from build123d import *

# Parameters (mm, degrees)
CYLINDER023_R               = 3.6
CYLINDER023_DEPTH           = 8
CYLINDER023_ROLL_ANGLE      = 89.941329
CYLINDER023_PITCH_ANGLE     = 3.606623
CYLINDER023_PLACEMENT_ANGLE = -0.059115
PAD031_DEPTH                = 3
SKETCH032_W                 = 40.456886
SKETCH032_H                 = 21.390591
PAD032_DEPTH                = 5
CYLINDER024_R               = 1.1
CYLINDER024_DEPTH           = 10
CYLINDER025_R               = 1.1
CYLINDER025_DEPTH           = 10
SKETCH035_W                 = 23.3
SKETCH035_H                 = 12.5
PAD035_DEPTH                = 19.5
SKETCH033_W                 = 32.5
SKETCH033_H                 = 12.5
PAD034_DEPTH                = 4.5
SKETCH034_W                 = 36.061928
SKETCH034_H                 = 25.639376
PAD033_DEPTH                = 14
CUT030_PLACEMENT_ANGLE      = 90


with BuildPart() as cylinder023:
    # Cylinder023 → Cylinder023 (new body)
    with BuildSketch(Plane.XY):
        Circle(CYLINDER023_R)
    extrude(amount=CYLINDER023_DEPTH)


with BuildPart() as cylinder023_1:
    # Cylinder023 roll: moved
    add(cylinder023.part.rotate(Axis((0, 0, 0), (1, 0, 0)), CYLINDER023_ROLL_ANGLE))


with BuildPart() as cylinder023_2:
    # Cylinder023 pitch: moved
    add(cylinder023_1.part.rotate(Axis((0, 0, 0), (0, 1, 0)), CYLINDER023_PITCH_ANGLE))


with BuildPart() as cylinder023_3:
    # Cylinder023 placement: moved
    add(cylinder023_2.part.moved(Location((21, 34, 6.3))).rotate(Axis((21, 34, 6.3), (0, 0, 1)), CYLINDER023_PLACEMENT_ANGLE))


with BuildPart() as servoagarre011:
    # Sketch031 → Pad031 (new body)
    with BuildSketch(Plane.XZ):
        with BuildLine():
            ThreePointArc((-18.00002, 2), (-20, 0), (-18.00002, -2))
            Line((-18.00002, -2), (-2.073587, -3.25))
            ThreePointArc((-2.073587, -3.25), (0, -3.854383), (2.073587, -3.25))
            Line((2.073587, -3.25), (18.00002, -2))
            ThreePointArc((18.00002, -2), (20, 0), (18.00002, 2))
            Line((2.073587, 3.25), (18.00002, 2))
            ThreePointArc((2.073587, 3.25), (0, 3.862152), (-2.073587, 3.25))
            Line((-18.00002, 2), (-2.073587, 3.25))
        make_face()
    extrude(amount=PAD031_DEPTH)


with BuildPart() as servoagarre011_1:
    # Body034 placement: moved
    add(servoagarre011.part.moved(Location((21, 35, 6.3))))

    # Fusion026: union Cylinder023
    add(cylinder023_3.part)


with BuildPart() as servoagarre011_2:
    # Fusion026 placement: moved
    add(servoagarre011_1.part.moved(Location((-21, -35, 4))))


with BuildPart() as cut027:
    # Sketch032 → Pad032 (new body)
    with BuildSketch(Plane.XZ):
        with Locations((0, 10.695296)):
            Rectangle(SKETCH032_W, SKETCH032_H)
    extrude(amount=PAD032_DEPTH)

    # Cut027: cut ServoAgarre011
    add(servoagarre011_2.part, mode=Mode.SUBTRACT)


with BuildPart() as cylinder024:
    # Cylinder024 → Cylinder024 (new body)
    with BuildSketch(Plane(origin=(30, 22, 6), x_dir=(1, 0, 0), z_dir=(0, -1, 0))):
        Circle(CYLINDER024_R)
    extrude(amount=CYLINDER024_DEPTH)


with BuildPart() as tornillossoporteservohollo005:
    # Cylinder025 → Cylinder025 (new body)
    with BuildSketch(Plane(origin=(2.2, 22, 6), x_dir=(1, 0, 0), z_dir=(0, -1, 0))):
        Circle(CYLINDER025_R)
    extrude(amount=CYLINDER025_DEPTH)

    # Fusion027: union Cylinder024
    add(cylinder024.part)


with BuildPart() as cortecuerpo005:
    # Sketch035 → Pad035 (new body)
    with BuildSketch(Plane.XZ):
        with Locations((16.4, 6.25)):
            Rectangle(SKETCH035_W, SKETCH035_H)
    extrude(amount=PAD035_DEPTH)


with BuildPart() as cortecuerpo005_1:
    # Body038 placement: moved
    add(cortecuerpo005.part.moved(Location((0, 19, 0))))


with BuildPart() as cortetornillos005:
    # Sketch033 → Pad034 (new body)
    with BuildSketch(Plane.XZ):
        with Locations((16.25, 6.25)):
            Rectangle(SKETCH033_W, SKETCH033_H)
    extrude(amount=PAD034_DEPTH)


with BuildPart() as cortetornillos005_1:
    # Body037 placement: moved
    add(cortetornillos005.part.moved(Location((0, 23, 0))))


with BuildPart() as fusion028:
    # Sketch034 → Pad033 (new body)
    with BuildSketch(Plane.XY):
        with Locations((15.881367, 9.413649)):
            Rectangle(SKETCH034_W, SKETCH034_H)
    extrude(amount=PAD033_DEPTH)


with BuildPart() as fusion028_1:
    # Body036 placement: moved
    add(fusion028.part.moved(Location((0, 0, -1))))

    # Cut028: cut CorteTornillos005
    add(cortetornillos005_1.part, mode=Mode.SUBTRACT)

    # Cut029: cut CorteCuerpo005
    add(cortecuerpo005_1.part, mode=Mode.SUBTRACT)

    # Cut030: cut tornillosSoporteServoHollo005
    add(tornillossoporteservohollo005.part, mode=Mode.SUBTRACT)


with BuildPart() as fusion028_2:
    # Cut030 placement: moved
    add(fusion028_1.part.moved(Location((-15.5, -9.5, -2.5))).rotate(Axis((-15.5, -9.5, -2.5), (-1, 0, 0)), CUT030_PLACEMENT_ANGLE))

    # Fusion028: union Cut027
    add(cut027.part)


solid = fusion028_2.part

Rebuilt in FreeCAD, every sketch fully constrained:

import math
import FreeCAD as App
import Part
import Sketcher

doc = App.newDocument("Part")
body = doc.addObject("PartDesign::Body", "Body")

# Sketch on XY plane
sketch1 = doc.addObject("Sketcher::SketchObject", "Sketch")
body.addObject(sketch1)
sketch1.AttachmentSupport = (doc.XY_Plane, [""])
sketch1.MapMode = "FlatFace"
sketch1.addGeometry(Part.Circle(App.Vector(0, 0, 0), App.Vector(0, 0, 1), 3.6), False)
sketch1.addConstraint([
    Sketcher.Constraint("Coincident", 0, 3, -1, 1),
    Sketcher.Constraint("Diameter", 0, 7.2),
])
pad1 = doc.addObject("PartDesign::Pad", "Pad")
body.addObject(pad1)
pad1.Profile = sketch1
pad1.Length = 8
body2 = doc.addObject("PartDesign::Body", "Body001")
doc.recompute()

body.Placement = App.Placement(App.Vector(0, 0, 0), App.Rotation(App.Vector(1, 0, 0), 89.941329))
boolean = doc.addObject("PartDesign::Boolean", "Boolean")
body2.addObject(boolean)
boolean.Type = "Fuse"
boolean.addObjects([body])
body3 = doc.addObject("PartDesign::Body", "Body002")
doc.recompute()

body2.Placement = App.Placement(App.Vector(0, 0, 0), App.Rotation(App.Vector(0, 1, 0), 3.606623))
boolean2 = doc.addObject("PartDesign::Boolean", "Boolean001")
body3.addObject(boolean2)
boolean2.Type = "Fuse"
boolean2.addObjects([body2])
body4 = doc.addObject("PartDesign::Body", "Body003")
doc.recompute()

body3.Placement = App.Placement(App.Vector(21, 34, 6.3), App.Rotation(App.Vector(0, 0, 1), 359.940885))
boolean3 = doc.addObject("PartDesign::Boolean", "Boolean002")
body4.addObject(boolean3)
boolean3.Type = "Fuse"
boolean3.addObjects([body3])
body5 = doc.addObject("PartDesign::Body", "Body004")

# Sketch on XZ plane
sketch2 = doc.addObject("Sketcher::SketchObject", "Sketch001")
body5.addObject(sketch2)
sketch2.AttachmentSupport = (doc.getObject("XZ_Plane004"), [""])
sketch2.MapMode = "FlatFace"
sketch2.addGeometry([
    Part.ArcOfCircle(Part.Circle(App.Vector(-18, 0, 0), App.Vector(0, 0, 1), 2), math.radians(90), math.radians(270)),  # 0
    Part.LineSegment(App.Vector(-18, -2, 0), App.Vector(-2.1, -3.2, 0)),  # 1
    Part.ArcOfCircle(Part.Circle(App.Vector(0, 0, 0), App.Vector(0, 0, 1), 3.9), math.radians(-122), math.radians(-58)),  # 2
    Part.LineSegment(App.Vector(2.1, -3.2, 0), App.Vector(18, -2, 0)),  # 3
    Part.ArcOfCircle(Part.Circle(App.Vector(18, 0, 0), App.Vector(0, 0, 1), 2), math.radians(-90), math.radians(90)),  # 4
    Part.LineSegment(App.Vector(18, 2, 0), App.Vector(2.1, 3.2, 0)),  # 5
    Part.ArcOfCircle(Part.Circle(App.Vector(0, 0, 0), App.Vector(0, 0, 1), 3.8), math.radians(57), math.radians(123)),  # 6
    Part.LineSegment(App.Vector(-2.1, 3.2, 0), App.Vector(-18, 2, 0)),  # 7
], False)
sketch2.addConstraint([
    Sketcher.Constraint("Coincident", 0, 2, 1, 1),
    Sketcher.Constraint("Coincident", 1, 2, 2, 1),
    Sketcher.Constraint("Coincident", 2, 2, 3, 1),
    Sketcher.Constraint("Coincident", 3, 2, 4, 1),
    Sketcher.Constraint("Coincident", 4, 2, 5, 1),
    Sketcher.Constraint("Coincident", 5, 2, 6, 1),
    Sketcher.Constraint("Coincident", 6, 2, 7, 1),
    Sketcher.Constraint("Coincident", 7, 2, 0, 1),
    Sketcher.Constraint("Equal", 0, 4),
    Sketcher.Constraint("Symmetric", 0, 3, 4, 3, -1, 1),
    Sketcher.Constraint("Symmetric", 1, 2, 5, 2, -1, 1),
    Sketcher.Constraint("Symmetric", 2, 2, 6, 2, -1, 1),
    Sketcher.Constraint("Symmetric", 1, 2, 2, 2, -2),
    Sketcher.Constraint("Symmetric", 0, 2, 3, 2, -2),
    Sketcher.Constraint("Parallel", 1, 5),
    Sketcher.Constraint("Parallel", 3, 7),
    Sketcher.Constraint("Radius", 0, 2.0),
    Sketcher.Constraint("DistanceX", 0, 3, -1, 1, 18.0),
    Sketcher.Constraint("DistanceY", 2, 2, 5, 2, 6.5),
    Sketcher.Constraint("Radius", 2, 3.859342),
    Sketcher.Constraint("Radius", 6, 3.818082),
    Sketcher.Constraint("Distance", 1, 15.975411),
    Sketcher.Constraint("DistanceY", -1, 1, 2, 3, 0.004959),
])
pad2 = doc.addObject("PartDesign::Pad", "Pad001")
body5.addObject(pad2)
pad2.Profile = sketch2
pad2.Length = 3
body6 = doc.addObject("PartDesign::Body", "Body005")
doc.recompute()

body5.Placement = App.Placement(App.Vector(21, 35, 6.3), App.Rotation(App.Vector(0, 0, 1), 0))
boolean4 = doc.addObject("PartDesign::Boolean", "Boolean003")
body6.addObject(boolean4)
boolean4.Type = "Fuse"
boolean4.addObjects([body5])
doc.recompute()

boolean5 = doc.addObject("PartDesign::Boolean", "Boolean004")
body6.addObject(boolean5)
boolean5.Type = "Fuse"
boolean5.addObjects([body4])
body7 = doc.addObject("PartDesign::Body", "Body006")
doc.recompute()

body6.Placement = App.Placement(App.Vector(-21, -35, 4), App.Rotation(App.Vector(0, 0, 1), 0))
boolean6 = doc.addObject("PartDesign::Boolean", "Boolean005")
body7.addObject(boolean6)
boolean6.Type = "Fuse"
boolean6.addObjects([body6])
body8 = doc.addObject("PartDesign::Body", "Body007")

# Sketch on XZ plane
sketch3 = doc.addObject("Sketcher::SketchObject", "Sketch002")
body8.addObject(sketch3)
sketch3.AttachmentSupport = (doc.getObject("XZ_Plane007"), [""])
sketch3.MapMode = "FlatFace"
sketch3.addGeometry([
    Part.LineSegment(App.Vector(-20, 21, 0), App.Vector(-20, 0, 0)),
    Part.LineSegment(App.Vector(-20, 0, 0), App.Vector(20, 0, 0)),
    Part.LineSegment(App.Vector(20, 0, 0), App.Vector(20, 21, 0)),
    Part.LineSegment(App.Vector(20, 21, 0), App.Vector(-20, 21, 0)),
], False)
sketch3.addConstraint([
    Sketcher.Constraint("Coincident", 0, 2, 1, 1),
    Sketcher.Constraint("Coincident", 1, 2, 2, 1),
    Sketcher.Constraint("Coincident", 2, 2, 3, 1),
    Sketcher.Constraint("Coincident", 3, 2, 0, 1),
    Sketcher.Constraint("Vertical", 0),
    Sketcher.Constraint("Horizontal", 1),
    Sketcher.Constraint("Vertical", 2),
    Sketcher.Constraint("Horizontal", 3),
    Sketcher.Constraint("Symmetric", 0, 2, 1, 2, -1, 1),
    Sketcher.Constraint("DistanceY", 0, 2, 0, 1, 21.390591),
    Sketcher.Constraint("DistanceX", 1, 1, 1, 2, 40.456886),
])
pad3 = doc.addObject("PartDesign::Pad", "Pad002")
body8.addObject(pad3)
pad3.Profile = sketch3
pad3.Length = 5
doc.recompute()

boolean7 = doc.addObject("PartDesign::Boolean", "Boolean006")
body8.addObject(boolean7)
boolean7.Type = "Cut"
boolean7.addObjects([body7])
body9 = doc.addObject("PartDesign::Body", "Body008")

# Sketch on XZ plane
sketch4 = doc.addObject("Sketcher::SketchObject", "Sketch003")
body9.addObject(sketch4)
sketch4.AttachmentSupport = (doc.getObject("XZ_Plane008"), [""])
sketch4.MapMode = "FlatFace"
sketch4.AttachmentOffset = App.Placement(App.Vector(0, 0, -22), App.Rotation())
sketch4.addGeometry(Part.Circle(App.Vector(30, 6, 0), App.Vector(0, 0, 1), 1.1), False)
sketch4.addConstraint([
    Sketcher.Constraint("Diameter", 0, 2.2),
    Sketcher.Constraint("DistanceX", -1, 1, 0, 3, 30.0),
    Sketcher.Constraint("DistanceY", -1, 1, 0, 3, 6.0),
])
pad4 = doc.addObject("PartDesign::Pad", "Pad003")
body9.addObject(pad4)
pad4.Profile = sketch4
pad4.Length = 10
body10 = doc.addObject("PartDesign::Body", "Body009")
body10.AllowCompound = True

# Sketch on XZ plane
sketch5 = doc.addObject("Sketcher::SketchObject", "Sketch004")
body10.addObject(sketch5)
sketch5.AttachmentSupport = (doc.getObject("XZ_Plane009"), [""])
sketch5.MapMode = "FlatFace"
sketch5.AttachmentOffset = App.Placement(App.Vector(0, 0, -22), App.Rotation())
sketch5.addGeometry(Part.Circle(App.Vector(2.2, 6, 0), App.Vector(0, 0, 1), 1.1), False)
sketch5.addConstraint([
    Sketcher.Constraint("Diameter", 0, 2.2),
    Sketcher.Constraint("DistanceY", -1, 1, 0, 3, 6.0),
    Sketcher.Constraint("DistanceX", -1, 1, 0, 3, 2.2),
])
pad5 = doc.addObject("PartDesign::Pad", "Pad004")
body10.addObject(pad5)
pad5.Profile = sketch5
pad5.Length = 10
doc.recompute()

boolean8 = doc.addObject("PartDesign::Boolean", "Boolean007")
body10.addObject(boolean8)
boolean8.Type = "Fuse"
boolean8.addObjects([body9])
body11 = doc.addObject("PartDesign::Body", "Body010")

# Sketch on XZ plane
sketch6 = doc.addObject("Sketcher::SketchObject", "Sketch005")
body11.addObject(sketch6)
sketch6.AttachmentSupport = (doc.getObject("XZ_Plane010"), [""])
sketch6.MapMode = "FlatFace"
sketch6.addGeometry([
    Part.LineSegment(App.Vector(5, 12, 0), App.Vector(5, 0, 0)),
    Part.LineSegment(App.Vector(5, 0, 0), App.Vector(28, 0, 0)),
    Part.LineSegment(App.Vector(28, 0, 0), App.Vector(28, 12, 0)),
    Part.LineSegment(App.Vector(28, 12, 0), App.Vector(5, 12, 0)),
], False)
sketch6.addConstraint([
    Sketcher.Constraint("Coincident", 0, 2, 1, 1),
    Sketcher.Constraint("Coincident", 1, 2, 2, 1),
    Sketcher.Constraint("Coincident", 2, 2, 3, 1),
    Sketcher.Constraint("Coincident", 3, 2, 0, 1),
    Sketcher.Constraint("Vertical", 0),
    Sketcher.Constraint("Horizontal", 1),
    Sketcher.Constraint("Vertical", 2),
    Sketcher.Constraint("Horizontal", 3),
    Sketcher.Constraint("PointOnObject", 0, 2, -1),
    Sketcher.Constraint("DistanceX", 1, 1, 1, 2, 23.3),
    Sketcher.Constraint("DistanceY", 0, 2, 0, 1, 12.5),
    Sketcher.Constraint("DistanceX", -1, 1, 0, 2, 4.75),
])
pad6 = doc.addObject("PartDesign::Pad", "Pad005")
body11.addObject(pad6)
pad6.Profile = sketch6
pad6.Length = 19.5
body12 = doc.addObject("PartDesign::Body", "Body011")
doc.recompute()

body11.Placement = App.Placement(App.Vector(0, 19, 0), App.Rotation(App.Vector(0, 0, 1), 0))
boolean9 = doc.addObject("PartDesign::Boolean", "Boolean008")
body12.addObject(boolean9)
boolean9.Type = "Fuse"
boolean9.addObjects([body11])
body13 = doc.addObject("PartDesign::Body", "Body012")

# Sketch on XZ plane
sketch7 = doc.addObject("Sketcher::SketchObject", "Sketch006")
body13.addObject(sketch7)
sketch7.AttachmentSupport = (doc.getObject("XZ_Plane012"), [""])
sketch7.MapMode = "FlatFace"
sketch7.addGeometry([
    Part.LineSegment(App.Vector(0, 12, 0), App.Vector(0, 0, 0)),
    Part.LineSegment(App.Vector(0, 0, 0), App.Vector(32, 0, 0)),
    Part.LineSegment(App.Vector(32, 0, 0), App.Vector(32, 12, 0)),
    Part.LineSegment(App.Vector(32, 12, 0), App.Vector(0, 12, 0)),
], False)
sketch7.addConstraint([
    Sketcher.Constraint("Coincident", 0, 2, 1, 1),
    Sketcher.Constraint("Coincident", 1, 2, 2, 1),
    Sketcher.Constraint("Coincident", 2, 2, 3, 1),
    Sketcher.Constraint("Coincident", 3, 2, 0, 1),
    Sketcher.Constraint("Vertical", 0),
    Sketcher.Constraint("Horizontal", 1),
    Sketcher.Constraint("Vertical", 2),
    Sketcher.Constraint("Horizontal", 3),
    Sketcher.Constraint("Coincident", 0, 2, -1, 1),
    Sketcher.Constraint("DistanceX", 1, 1, 1, 2, 32.5),
    Sketcher.Constraint("DistanceY", 0, 2, 0, 1, 12.5),
])
pad7 = doc.addObject("PartDesign::Pad", "Pad006")
body13.addObject(pad7)
pad7.Profile = sketch7
pad7.Length = 4.5
body14 = doc.addObject("PartDesign::Body", "Body013")
doc.recompute()

body13.Placement = App.Placement(App.Vector(0, 23, 0), App.Rotation(App.Vector(0, 0, 1), 0))
boolean10 = doc.addObject("PartDesign::Boolean", "Boolean009")
body14.addObject(boolean10)
boolean10.Type = "Fuse"
boolean10.addObjects([body13])
body15 = doc.addObject("PartDesign::Body", "Body014")

# Sketch on XY plane
sketch8 = doc.addObject("Sketcher::SketchObject", "Sketch007")
body15.addObject(sketch8)
sketch8.AttachmentSupport = (doc.getObject("XY_Plane014"), [""])
sketch8.MapMode = "FlatFace"
sketch8.addGeometry([
    Part.LineSegment(App.Vector(-2, 22, 0), App.Vector(-2, -3, 0)),
    Part.LineSegment(App.Vector(-2, -3, 0), App.Vector(34, -3, 0)),
    Part.LineSegment(App.Vector(34, -3, 0), App.Vector(34, 22, 0)),
    Part.LineSegment(App.Vector(34, 22, 0), App.Vector(-2, 22, 0)),
], False)
sketch8.addConstraint([
    Sketcher.Constraint("Coincident", 0, 2, 1, 1),
    Sketcher.Constraint("Coincident", 1, 2, 2, 1),
    Sketcher.Constraint("Coincident", 2, 2, 3, 1),
    Sketcher.Constraint("Coincident", 3, 2, 0, 1),
    Sketcher.Constraint("Vertical", 0),
    Sketcher.Constraint("Horizontal", 1),
    Sketcher.Constraint("Vertical", 2),
    Sketcher.Constraint("Horizontal", 3),
    Sketcher.Constraint("DistanceX", 1, 1, 1, 2, 36.061928),
    Sketcher.Constraint("DistanceY", 0, 2, 0, 1, 25.639376),
    Sketcher.Constraint("DistanceY", 0, 2, -1, 1, 3.406039),
    Sketcher.Constraint("DistanceX", -1, 1, 1, 2, 33.912331),
])
pad8 = doc.addObject("PartDesign::Pad", "Pad007")
body15.addObject(pad8)
pad8.Profile = sketch8
pad8.Length = 14
body16 = doc.addObject("PartDesign::Body", "Body015")
doc.recompute()

body15.Placement = App.Placement(App.Vector(0, 0, -1), App.Rotation(App.Vector(0, 0, 1), 0))
boolean11 = doc.addObject("PartDesign::Boolean", "Boolean010")
body16.addObject(boolean11)
boolean11.Type = "Fuse"
boolean11.addObjects([body15])
doc.recompute()

boolean12 = doc.addObject("PartDesign::Boolean", "Boolean011")
body16.addObject(boolean12)
boolean12.Type = "Cut"
boolean12.addObjects([body14])
doc.recompute()

boolean13 = doc.addObject("PartDesign::Boolean", "Boolean012")
body16.addObject(boolean13)
boolean13.Type = "Cut"
boolean13.addObjects([body12])
doc.recompute()

boolean14 = doc.addObject("PartDesign::Boolean", "Boolean013")
body16.addObject(boolean14)
boolean14.Type = "Cut"
boolean14.addObjects([body10])
body17 = doc.addObject("PartDesign::Body", "Body016")
doc.recompute()

body16.Placement = App.Placement(App.Vector(-15.5, -9.5, -2.5), App.Rotation(App.Vector(-1, 0, 0), 90))
boolean15 = doc.addObject("PartDesign::Boolean", "Boolean014")
body17.addObject(boolean15)
boolean15.Type = "Fuse"
boolean15.addObjects([body16])
doc.recompute()

boolean16 = doc.addObject("PartDesign::Boolean", "Boolean015")
body17.addObject(boolean16)
boolean16.Type = "Fuse"
boolean16.addObjects([body8])

doc.recompute()
